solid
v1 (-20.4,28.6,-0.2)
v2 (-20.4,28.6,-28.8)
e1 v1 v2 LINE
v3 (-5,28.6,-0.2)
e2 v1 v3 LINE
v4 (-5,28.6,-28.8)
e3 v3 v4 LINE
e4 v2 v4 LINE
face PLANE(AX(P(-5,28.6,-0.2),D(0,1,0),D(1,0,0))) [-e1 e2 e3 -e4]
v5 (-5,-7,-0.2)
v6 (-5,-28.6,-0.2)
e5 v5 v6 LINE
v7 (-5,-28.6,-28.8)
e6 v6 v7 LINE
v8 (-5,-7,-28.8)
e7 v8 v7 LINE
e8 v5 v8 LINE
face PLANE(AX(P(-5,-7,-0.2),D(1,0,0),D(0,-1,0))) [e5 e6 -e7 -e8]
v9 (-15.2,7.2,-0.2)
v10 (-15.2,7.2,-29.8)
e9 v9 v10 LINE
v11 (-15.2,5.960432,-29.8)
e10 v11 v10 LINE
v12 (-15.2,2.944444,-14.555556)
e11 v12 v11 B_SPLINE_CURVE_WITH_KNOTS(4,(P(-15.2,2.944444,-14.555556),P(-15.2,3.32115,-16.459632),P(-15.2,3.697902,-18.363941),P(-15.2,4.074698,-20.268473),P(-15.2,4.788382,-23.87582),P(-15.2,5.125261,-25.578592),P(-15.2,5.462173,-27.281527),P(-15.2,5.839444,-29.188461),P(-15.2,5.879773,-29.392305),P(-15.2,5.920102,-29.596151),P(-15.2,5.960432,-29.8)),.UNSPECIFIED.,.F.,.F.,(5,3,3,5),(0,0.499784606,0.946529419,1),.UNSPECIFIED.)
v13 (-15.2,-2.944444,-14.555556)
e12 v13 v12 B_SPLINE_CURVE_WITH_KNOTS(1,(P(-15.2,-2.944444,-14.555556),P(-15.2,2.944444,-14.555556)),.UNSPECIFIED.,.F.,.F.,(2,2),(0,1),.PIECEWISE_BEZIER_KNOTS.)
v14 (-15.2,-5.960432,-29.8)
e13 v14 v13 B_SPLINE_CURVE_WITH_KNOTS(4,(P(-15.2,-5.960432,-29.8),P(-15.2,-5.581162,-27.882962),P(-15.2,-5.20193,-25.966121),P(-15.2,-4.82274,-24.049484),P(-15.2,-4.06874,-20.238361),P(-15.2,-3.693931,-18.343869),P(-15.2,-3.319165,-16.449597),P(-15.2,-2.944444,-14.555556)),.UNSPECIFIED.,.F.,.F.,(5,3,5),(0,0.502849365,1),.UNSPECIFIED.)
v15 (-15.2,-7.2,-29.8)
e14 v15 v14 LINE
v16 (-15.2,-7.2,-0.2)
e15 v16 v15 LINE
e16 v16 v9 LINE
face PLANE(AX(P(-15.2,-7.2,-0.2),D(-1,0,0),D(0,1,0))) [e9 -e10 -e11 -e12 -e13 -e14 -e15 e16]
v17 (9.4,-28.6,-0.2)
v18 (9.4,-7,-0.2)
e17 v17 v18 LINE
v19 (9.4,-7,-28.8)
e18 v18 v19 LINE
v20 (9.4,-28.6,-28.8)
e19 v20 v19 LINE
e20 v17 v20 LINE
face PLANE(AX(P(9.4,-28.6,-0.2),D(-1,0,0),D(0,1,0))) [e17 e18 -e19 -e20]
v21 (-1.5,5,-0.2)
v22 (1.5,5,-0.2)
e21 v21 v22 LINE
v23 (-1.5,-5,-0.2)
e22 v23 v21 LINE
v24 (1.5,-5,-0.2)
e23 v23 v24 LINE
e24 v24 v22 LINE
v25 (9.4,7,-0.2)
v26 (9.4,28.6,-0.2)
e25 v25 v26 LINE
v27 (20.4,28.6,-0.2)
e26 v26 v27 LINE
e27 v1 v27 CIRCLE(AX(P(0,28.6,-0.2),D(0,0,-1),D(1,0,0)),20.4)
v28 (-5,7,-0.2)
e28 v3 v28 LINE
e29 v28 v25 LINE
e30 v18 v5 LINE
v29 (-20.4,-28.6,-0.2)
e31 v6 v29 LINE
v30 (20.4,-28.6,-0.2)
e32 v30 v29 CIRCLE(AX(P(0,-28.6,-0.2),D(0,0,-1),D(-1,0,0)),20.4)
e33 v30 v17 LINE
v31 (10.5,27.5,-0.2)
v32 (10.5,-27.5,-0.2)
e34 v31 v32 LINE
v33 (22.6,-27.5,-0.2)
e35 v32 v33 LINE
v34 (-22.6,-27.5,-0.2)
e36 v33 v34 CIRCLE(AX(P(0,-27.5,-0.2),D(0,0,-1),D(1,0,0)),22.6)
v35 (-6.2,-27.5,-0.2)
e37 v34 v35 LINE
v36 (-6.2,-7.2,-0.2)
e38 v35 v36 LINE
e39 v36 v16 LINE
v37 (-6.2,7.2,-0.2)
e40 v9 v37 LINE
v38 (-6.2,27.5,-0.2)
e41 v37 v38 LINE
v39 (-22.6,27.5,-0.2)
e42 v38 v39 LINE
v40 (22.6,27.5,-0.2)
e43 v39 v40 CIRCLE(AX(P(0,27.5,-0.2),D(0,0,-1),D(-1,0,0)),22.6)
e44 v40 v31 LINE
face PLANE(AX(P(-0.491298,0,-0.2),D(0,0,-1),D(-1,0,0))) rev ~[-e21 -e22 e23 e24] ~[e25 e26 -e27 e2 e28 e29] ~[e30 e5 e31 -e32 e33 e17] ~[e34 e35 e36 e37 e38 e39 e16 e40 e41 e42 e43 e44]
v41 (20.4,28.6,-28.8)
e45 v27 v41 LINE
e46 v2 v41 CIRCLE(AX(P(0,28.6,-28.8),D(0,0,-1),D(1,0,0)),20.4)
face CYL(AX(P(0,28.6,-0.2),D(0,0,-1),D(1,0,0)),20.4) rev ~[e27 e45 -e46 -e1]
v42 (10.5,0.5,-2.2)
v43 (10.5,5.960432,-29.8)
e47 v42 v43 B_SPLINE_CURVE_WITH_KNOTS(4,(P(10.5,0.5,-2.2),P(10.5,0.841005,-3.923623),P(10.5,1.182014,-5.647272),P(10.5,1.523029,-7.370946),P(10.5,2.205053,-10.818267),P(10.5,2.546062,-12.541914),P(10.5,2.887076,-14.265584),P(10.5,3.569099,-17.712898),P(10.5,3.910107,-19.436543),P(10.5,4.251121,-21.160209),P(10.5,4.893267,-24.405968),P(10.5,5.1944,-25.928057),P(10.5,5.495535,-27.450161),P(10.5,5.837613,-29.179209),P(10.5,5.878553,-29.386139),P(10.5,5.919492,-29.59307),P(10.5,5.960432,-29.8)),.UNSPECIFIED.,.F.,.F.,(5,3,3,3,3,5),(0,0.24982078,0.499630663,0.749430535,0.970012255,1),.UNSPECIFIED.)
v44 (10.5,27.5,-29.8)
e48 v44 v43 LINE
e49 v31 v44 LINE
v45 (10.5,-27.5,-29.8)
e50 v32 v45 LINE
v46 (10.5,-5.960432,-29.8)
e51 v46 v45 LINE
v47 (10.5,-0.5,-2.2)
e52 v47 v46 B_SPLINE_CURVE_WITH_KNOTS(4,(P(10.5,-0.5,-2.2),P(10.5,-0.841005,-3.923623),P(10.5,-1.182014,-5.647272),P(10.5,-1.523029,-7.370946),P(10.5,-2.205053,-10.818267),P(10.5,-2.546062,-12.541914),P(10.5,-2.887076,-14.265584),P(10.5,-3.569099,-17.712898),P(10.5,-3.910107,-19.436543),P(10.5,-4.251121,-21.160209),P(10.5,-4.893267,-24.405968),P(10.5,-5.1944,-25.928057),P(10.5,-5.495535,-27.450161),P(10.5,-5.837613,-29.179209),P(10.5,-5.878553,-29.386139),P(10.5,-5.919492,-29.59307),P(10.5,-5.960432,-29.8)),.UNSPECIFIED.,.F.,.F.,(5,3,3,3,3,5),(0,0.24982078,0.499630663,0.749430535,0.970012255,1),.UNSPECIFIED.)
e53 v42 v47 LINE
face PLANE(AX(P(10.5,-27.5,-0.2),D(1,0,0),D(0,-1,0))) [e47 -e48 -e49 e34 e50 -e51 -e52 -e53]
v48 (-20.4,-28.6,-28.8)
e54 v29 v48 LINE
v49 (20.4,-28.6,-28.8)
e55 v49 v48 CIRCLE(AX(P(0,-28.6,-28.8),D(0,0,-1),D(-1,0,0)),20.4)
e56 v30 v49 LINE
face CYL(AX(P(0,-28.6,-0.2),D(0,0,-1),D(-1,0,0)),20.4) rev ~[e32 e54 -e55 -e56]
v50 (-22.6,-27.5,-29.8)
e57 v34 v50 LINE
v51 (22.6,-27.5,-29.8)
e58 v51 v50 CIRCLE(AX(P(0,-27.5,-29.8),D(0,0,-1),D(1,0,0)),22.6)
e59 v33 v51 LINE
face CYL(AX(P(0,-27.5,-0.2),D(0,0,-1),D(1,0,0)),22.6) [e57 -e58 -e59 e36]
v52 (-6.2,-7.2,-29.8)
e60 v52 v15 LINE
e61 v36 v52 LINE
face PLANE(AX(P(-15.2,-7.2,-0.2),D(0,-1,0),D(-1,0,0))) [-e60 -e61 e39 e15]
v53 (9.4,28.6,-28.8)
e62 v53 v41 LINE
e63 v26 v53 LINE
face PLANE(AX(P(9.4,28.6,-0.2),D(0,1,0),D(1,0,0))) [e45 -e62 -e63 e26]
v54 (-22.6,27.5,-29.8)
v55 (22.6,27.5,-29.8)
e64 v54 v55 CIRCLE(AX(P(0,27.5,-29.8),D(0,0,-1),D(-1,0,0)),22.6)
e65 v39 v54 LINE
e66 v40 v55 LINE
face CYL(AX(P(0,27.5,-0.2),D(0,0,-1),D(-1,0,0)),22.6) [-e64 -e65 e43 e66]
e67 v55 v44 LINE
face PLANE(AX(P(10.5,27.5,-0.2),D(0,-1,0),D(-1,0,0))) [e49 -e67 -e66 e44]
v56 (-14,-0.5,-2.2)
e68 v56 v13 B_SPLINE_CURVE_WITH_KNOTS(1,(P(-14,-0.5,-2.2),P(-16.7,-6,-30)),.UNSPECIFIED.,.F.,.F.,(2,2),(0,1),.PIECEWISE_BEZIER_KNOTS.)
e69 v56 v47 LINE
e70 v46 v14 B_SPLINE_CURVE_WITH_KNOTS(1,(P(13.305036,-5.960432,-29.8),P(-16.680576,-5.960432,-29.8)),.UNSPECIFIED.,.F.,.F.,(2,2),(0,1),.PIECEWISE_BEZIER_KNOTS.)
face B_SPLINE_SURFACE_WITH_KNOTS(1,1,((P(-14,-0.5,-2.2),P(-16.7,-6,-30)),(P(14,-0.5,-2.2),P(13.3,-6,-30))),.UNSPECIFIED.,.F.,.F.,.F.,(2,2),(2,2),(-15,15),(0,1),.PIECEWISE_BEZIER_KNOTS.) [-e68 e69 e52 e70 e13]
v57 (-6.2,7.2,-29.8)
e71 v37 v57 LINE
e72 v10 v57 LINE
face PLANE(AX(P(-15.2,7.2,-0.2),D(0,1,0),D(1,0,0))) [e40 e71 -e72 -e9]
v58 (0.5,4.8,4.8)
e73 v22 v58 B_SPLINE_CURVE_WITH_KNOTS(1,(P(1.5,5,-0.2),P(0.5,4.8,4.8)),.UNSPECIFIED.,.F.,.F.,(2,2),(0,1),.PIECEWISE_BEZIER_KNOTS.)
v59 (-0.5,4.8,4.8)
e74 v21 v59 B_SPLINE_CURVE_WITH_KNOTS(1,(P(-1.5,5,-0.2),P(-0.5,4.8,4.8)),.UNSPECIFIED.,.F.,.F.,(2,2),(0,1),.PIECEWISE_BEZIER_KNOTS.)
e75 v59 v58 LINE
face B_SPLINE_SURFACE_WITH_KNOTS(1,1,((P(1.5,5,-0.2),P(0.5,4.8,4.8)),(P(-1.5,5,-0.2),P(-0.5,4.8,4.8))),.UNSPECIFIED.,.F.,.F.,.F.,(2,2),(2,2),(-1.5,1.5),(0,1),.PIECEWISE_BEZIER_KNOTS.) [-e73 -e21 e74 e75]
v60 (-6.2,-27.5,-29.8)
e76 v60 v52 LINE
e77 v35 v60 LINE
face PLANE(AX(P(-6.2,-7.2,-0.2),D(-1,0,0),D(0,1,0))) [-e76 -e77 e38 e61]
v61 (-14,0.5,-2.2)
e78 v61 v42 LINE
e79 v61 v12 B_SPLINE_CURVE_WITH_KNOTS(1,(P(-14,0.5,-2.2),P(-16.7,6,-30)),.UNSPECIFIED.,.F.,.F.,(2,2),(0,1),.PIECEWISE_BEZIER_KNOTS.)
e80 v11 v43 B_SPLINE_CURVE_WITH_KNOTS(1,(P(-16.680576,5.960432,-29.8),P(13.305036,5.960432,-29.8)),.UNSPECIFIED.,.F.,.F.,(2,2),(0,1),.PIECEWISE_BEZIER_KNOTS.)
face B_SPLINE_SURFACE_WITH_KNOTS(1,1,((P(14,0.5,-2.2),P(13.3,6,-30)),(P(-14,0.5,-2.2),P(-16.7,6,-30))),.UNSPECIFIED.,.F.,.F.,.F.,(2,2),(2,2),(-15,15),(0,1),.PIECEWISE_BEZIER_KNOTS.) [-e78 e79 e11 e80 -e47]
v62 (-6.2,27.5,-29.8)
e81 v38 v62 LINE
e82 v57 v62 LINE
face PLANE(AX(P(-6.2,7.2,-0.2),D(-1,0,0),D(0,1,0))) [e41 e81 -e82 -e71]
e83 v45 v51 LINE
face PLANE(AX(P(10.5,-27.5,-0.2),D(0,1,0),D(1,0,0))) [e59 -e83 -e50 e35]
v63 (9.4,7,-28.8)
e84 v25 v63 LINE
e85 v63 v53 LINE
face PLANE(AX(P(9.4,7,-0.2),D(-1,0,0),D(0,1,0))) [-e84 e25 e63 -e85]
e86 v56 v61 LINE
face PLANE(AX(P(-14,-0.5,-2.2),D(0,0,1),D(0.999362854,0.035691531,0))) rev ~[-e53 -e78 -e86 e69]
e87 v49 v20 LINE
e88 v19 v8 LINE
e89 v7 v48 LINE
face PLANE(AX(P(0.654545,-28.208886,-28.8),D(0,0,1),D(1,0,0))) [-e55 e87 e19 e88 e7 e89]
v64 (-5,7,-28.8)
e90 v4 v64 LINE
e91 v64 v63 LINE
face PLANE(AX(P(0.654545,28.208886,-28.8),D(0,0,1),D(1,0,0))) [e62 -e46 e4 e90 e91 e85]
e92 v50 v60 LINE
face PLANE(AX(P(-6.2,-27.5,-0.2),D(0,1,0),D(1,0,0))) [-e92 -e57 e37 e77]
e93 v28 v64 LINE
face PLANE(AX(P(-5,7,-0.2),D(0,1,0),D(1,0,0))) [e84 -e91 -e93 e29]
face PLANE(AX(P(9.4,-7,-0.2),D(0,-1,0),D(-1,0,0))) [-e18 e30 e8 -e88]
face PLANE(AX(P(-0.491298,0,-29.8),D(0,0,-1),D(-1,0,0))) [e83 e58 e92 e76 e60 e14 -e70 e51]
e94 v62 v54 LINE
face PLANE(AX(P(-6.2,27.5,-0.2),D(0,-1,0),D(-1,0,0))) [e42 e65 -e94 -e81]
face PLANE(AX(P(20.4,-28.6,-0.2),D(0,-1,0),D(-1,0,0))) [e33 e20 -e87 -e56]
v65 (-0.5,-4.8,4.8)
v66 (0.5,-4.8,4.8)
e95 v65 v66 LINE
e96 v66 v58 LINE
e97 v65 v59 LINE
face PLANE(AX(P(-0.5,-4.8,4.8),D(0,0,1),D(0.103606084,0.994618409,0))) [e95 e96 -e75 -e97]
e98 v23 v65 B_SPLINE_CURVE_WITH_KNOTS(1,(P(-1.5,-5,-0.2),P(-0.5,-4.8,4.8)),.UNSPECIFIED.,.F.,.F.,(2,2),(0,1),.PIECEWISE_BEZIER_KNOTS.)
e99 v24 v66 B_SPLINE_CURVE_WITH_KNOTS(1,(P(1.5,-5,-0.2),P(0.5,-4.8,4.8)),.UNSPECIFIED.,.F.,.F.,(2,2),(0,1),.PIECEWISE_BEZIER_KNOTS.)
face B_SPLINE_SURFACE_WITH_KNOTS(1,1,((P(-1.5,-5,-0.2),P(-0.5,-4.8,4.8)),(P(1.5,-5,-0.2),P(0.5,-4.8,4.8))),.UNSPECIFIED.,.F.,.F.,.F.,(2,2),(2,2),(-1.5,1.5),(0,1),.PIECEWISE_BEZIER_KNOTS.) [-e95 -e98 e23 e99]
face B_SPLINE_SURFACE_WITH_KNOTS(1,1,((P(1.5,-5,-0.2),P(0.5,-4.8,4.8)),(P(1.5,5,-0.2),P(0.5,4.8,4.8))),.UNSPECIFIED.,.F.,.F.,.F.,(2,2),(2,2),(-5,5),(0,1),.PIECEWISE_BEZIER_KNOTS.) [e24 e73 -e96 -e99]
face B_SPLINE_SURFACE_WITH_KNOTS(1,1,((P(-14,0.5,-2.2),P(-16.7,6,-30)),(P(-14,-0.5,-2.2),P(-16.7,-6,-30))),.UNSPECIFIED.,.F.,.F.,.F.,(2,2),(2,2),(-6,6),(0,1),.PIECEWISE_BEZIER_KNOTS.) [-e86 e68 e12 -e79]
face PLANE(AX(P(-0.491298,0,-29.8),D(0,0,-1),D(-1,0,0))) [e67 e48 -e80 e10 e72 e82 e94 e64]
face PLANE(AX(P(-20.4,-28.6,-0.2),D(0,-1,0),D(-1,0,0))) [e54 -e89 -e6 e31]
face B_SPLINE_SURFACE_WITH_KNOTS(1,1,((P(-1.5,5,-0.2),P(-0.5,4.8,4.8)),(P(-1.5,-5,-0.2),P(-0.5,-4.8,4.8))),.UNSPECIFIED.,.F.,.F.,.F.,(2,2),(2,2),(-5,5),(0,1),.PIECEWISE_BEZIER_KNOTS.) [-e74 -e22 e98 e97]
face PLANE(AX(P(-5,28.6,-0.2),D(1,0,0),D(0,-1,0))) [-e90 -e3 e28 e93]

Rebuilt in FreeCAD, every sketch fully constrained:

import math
import FreeCAD as App
import Part
import Sketcher
from FreeCAD import Vector
Q = App.Units.Quantity


def add_polygon(sketch, points):
    """Adds a closed chain of lines whose ends are joined by coincident constraints."""
    first, n = sketch.GeometryCount, len(points)
    for a, b in zip(points, points[1:] + points[:1]):
        sketch.addGeometry(Part.LineSegment(App.Vector(*a, 0), App.Vector(*b, 0)), False)
    for i in range(n):
        sketch.addConstraint(Sketcher.Constraint("Coincident", first + i, 2, first + (i + 1) % n, 1))

doc = App.newDocument("Part")
body = doc.addObject("PartDesign::Body", "Body")

sketch1 = body.newObject("Sketcher::SketchObject", "Sketch")
sketch1.AttachmentSupport = (doc.getObject("XY_Plane"), [""])
sketch1.MapMode = "FlatFace"
sketch1.AttachmentOffset = App.Placement(Vector(0, 0, -0.2), App.Rotation())
add_polygon(sketch1, [(-1.5, 5), (-1.5, -5), (1.5, -5), (1.5, 5)])
sketch1.addConstraint([
    Sketcher.Constraint("Vertical", 0),
    Sketcher.Constraint("Horizontal", 1),
    Sketcher.Constraint("Vertical", 2),
    Sketcher.Constraint("Horizontal", 3),
    Sketcher.Constraint("Symmetric", 0, 2, 2, 2, -1, 1),
    Sketcher.Constraint("DistanceX", 1, 1, 1, 2, Q("3 mm")),
    Sketcher.Constraint("DistanceY", 0, 2, 0, 1, Q("10 mm")),
])

sketch2 = body.newObject("Sketcher::SketchObject", "Sketch001")
sketch2.AttachmentSupport = (doc.getObject("XY_Plane"), [""])
sketch2.MapMode = "FlatFace"
sketch2.AttachmentOffset = App.Placement(Vector(0, 0, 4.8), App.Rotation())
add_polygon(sketch2, [(-0.5, 4.8), (-0.5, -4.8), (0.5, -4.8), (0.5, 4.8)])
sketch2.addConstraint([
    Sketcher.Constraint("Vertical", 0),
    Sketcher.Constraint("Horizontal", 1),
    Sketcher.Constraint("Vertical", 2),
    Sketcher.Constraint("Horizontal", 3),
    Sketcher.Constraint("Symmetric", 0, 2, 2, 2, -1, 1),
    Sketcher.Constraint("DistanceX", 1, 1, 1, 2, Q("1 mm")),
    Sketcher.Constraint("DistanceY", 0, 2, 0, 1, Q("9.6 mm")),
])

additiveloft = body.newObject("PartDesign::AdditiveLoft", "AdditiveLoft")
additiveloft.Profile = sketch1
additiveloft.Sections = [sketch2]

sketch3 = body.newObject("Sketcher::SketchObject", "Sketch002")
sketch3.AttachmentSupport = (doc.getObject("XY_Plane"), [""])
sketch3.MapMode = "FlatFace"
sketch3.AttachmentOffset = App.Placement(Vector(0, 0, -0.2), App.Rotation())
sketch3.addGeometry([
    Part.LineSegment(Vector(10, 28, 0), Vector(10, -28, 0)),
    Part.LineSegment(Vector(10, -28, 0), Vector(23, -28, 0)),
    Part.ArcOfCircle(Part.Circle(Vector(0, -28, 0), Vector(0, 0, 1), 23), math.radians(180), math.radians(360)),
    Part.LineSegment(Vector(-23, -28, 0), Vector(-6, -28, 0)),
    Part.LineSegment(Vector(-6, -28, 0), Vector(-6, -7, 0)),
    Part.LineSegment(Vector(-6, -7, 0), Vector(-15, -7, 0)),
    Part.LineSegment(Vector(-15, -7, 0), Vector(-15, 7, 0)),
    Part.LineSegment(Vector(-15, 7, 0), Vector(-6, 7, 0)),
    Part.LineSegment(Vector(-6, 7, 0), Vector(-6, 28, 0)),
    Part.LineSegment(Vector(-6, 28, 0), Vector(-23, 28, 0)),
    Part.ArcOfCircle(Part.Circle(Vector(0, 28, 0), Vector(0, 0, 1), 23), math.radians(0), math.radians(180)),
    Part.LineSegment(Vector(23, 28, 0), Vector(10, 28, 0)),
], False)
sketch3.addConstraint([
    Sketcher.Constraint("Coincident", 0, 2, 1, 1),
    Sketcher.Constraint("Coincident", 1, 2, 2, 2),
    Sketcher.Constraint("Coincident", 2, 1, 3, 1),
    Sketcher.Constraint("Coincident", 3, 2, 4, 1),
    Sketcher.Constraint("Coincident", 4, 2, 5, 1),
    Sketcher.Constraint("Coincident", 5, 2, 6, 1),
    Sketcher.Constraint("Coincident", 6, 2, 7, 1),
    Sketcher.Constraint("Coincident", 7, 2, 8, 1),
    Sketcher.Constraint("Coincident", 8, 2, 9, 1),
    Sketcher.Constraint("Coincident", 9, 2, 10, 2),
    Sketcher.Constraint("Coincident", 10, 1, 11, 1),
    Sketcher.Constraint("Coincident", 11, 2, 0, 1),
    Sketcher.Constraint("Vertical", 0),
    Sketcher.Constraint("Horizontal", 1),
    Sketcher.Constraint("Horizontal", 3),
    Sketcher.Constraint("Vertical", 4),
    Sketcher.Constraint("Horizontal", 5),
    Sketcher.Constraint("Vertical", 6),
    Sketcher.Constraint("Horizontal", 7),
    Sketcher.Constraint("Vertical", 8),
    Sketcher.Constraint("Horizontal", 9),
    Sketcher.Constraint("Horizontal", 11),
    Sketcher.Constraint("Equal", 2, 10),
    Sketcher.Constraint("Symmetric", 2, 3, 10, 3, -1, 1),
    Sketcher.Constraint("Symmetric", 1, 2, 2, 1, -2),
    Sketcher.Constraint("Symmetric", 4, 2, 7, 2, -1),
    Sketcher.Constraint("Horizontal", 2, 3, 0, 2),
    Sketcher.Constraint("Horizontal", 10, 3, 8, 2),
    Sketcher.Constraint("Horizontal", 9, 2, 10, 1),
    Sketcher.Constraint("Radius", 2, Q("22.6 mm")),
    Sketcher.Constraint("DistanceX", 5, 2, 5, 1, Q("9 mm")),
    Sketcher.Constraint("DistanceY", 0, 2, 0, 1, Q("55 mm")),
    Sketcher.Constraint("DistanceX", 1, 1, 1, 2, Q("12.1 mm")),
    Sketcher.Constraint("DistanceX", 3, 1, 3, 2, Q("16.4 mm")),
    Sketcher.Constraint("DistanceY", 4, 1, 4, 2, Q("20.3 mm")),
])

sketch4 = body.newObject("Sketcher::SketchObject", "Sketch003")
sketch4.AttachmentSupport = (doc.getObject("XZ_Plane"), [""])
sketch4.MapMode = "FlatFace"
sketch4.addGeometry(Part.LineSegment(Vector(0, 0, 0), Vector(0, -30, 0)), False)
sketch4.addConstraint([
    Sketcher.Constraint("Vertical", 0),
    Sketcher.Constraint("PointOnObject", 0, 1, -2),
    Sketcher.Constraint("DistanceY", 0, 2, 0, 1, Q("29.6 mm")),
    Sketcher.Constraint("DistanceY", 0, 1, -1, 1, Q("0.2 mm")),
])
doc.recompute()

additivepipe = body.newObject("PartDesign::AdditivePipe", "AdditivePipe")
additivepipe.Profile = sketch3
additivepipe.Spine = (sketch4, ["Edge1"])

sketch5 = body.newObject("Sketcher::SketchObject", "Sketch004")
sketch5.AttachmentSupport = (doc.getObject("XY_Plane"), [""])
sketch5.MapMode = "FlatFace"
sketch5.AttachmentOffset = App.Placement(Vector(0, 0, -2.2), App.Rotation())
add_polygon(sketch5, [(-14, 0.5), (-14, -0.5), (14, -0.5), (14, 0.5)])
sketch5.addConstraint([
    Sketcher.Constraint("Vertical", 0),
    Sketcher.Constraint("Horizontal", 1),
    Sketcher.Constraint("Vertical", 2),
    Sketcher.Constraint("Horizontal", 3),
    Sketcher.Constraint("Symmetric", 0, 2, 2, 2, -1, 1),
    Sketcher.Constraint("DistanceX", 1, 1, 1, 2, Q("28 mm")),
    Sketcher.Constraint("DistanceY", 0, 2, 0, 1, Q("1 mm")),
])

sketch6 = body.newObject("Sketcher::SketchObject", "Sketch005")
sketch6.AttachmentSupport = (doc.getObject("XY_Plane"), [""])
sketch6.MapMode = "FlatFace"
sketch6.AttachmentOffset = App.Placement(Vector(0, 0, -30), App.Rotation())
add_polygon(sketch6, [(-17, 6), (-17, -6), (13, -6), (13, 6)])
sketch6.addConstraint([
    Sketcher.Constraint("Vertical", 0),
    Sketcher.Constraint("Horizontal", 1),
    Sketcher.Constraint("Vertical", 2),
    Sketcher.Constraint("Horizontal", 3),
    Sketcher.Constraint("DistanceX", 1, 1, 1, 2, Q("30 mm")),
    Sketcher.Constraint("DistanceY", 0, 2, 0, 1, Q("12 mm")),
    Sketcher.Constraint("DistanceY", 0, 2, -1, 1, Q("6 mm")),
    Sketcher.Constraint("DistanceX", 0, 2, -1, 1, Q("16.7 mm")),
])

subtractiveloft = body.newObject("PartDesign::SubtractiveLoft", "SubtractiveLoft")
subtractiveloft.Profile = sketch5
subtractiveloft.Sections = [sketch6]

sketch7 = body.newObject("Sketcher::SketchObject", "Sketch006")
sketch7.AttachmentSupport = (doc.getObject("XY_Plane"), [""])
sketch7.MapMode = "FlatFace"
sketch7.AttachmentOffset = App.Placement(Vector(0, 0, -0.2), App.Rotation())
sketch7.addGeometry([
    Part.LineSegment(Vector(-5, -7, 0), Vector(-5, -29, 0)),
    Part.LineSegment(Vector(-5, -29, 0), Vector(-20, -29, 0)),
    Part.ArcOfCircle(Part.Circle(Vector(0, -29, 0), Vector(0, 0, 1), 20), math.radians(180), math.radians(360)),
    Part.LineSegment(Vector(20, -29, 0), Vector(9, -29, 0)),
    Part.LineSegment(Vector(9, -29, 0), Vector(9, -7, 0)),
    Part.LineSegment(Vector(9, -7, 0), Vector(-5, -7, 0)),
], False)
sketch7.addConstraint([
    Sketcher.Constraint("Coincident", 0, 2, 1, 1),
    Sketcher.Constraint("Coincident", 1, 2, 2, 1),
    Sketcher.Constraint("Coincident", 2, 2, 3, 1),
    Sketcher.Constraint("Coincident", 3, 2, 4, 1),
    Sketcher.Constraint("Coincident", 4, 2, 5, 1),
    Sketcher.Constraint("Coincident", 5, 2, 0, 1),
    Sketcher.Constraint("Vertical", 0),
    Sketcher.Constraint("Horizontal", 1),
    Sketcher.Constraint("Horizontal", 3),
    Sketcher.Constraint("Vertical", 4),
    Sketcher.Constraint("Horizontal", 5),
    Sketcher.Constraint("Symmetric", 1, 2, 2, 2, -2),
    Sketcher.Constraint("Horizontal", 2, 3, 0, 2),
    Sketcher.Constraint("Radius", 2, Q("20.4 mm")),
    Sketcher.Constraint("DistanceX", 3, 2, 3, 1, Q("11 mm")),
    Sketcher.Constraint("DistanceX", 1, 2, 1, 1, Q("15.4 mm")),
    Sketcher.Constraint("DistanceY", 0, 2, 0, 1, Q("21.6 mm")),
    Sketcher.Constraint("DistanceY", 4, 2, -1, 1, Q("7 mm")),
])

sketch8 = body.newObject("Sketcher::SketchObject", "Sketch007")
sketch8.AttachmentSupport = (doc.getObject("XZ_Plane"), [""])
sketch8.MapMode = "FlatFace"
sketch8.AttachmentOffset = App.Placement(Vector(0, 0, -15), App.Rotation())
sketch8.addGeometry(Part.LineSegment(Vector(0, 0, 0), Vector(0, -29, 0)), False)
sketch8.addConstraint([
    Sketcher.Constraint("Vertical", 0),
    Sketcher.Constraint("PointOnObject", 0, 1, -2),
    Sketcher.Constraint("DistanceY", 0, 2, 0, 1, Q("28.6 mm")),
    Sketcher.Constraint("DistanceY", 0, 1, -1, 1, Q("0.2 mm")),
])
doc.recompute()

subtractivepipe = body.newObject("PartDesign::SubtractivePipe", "SubtractivePipe")
subtractivepipe.Profile = sketch7
subtractivepipe.Spine = (sketch8, ["Edge1"])

sketch9 = body.newObject("Sketcher::SketchObject", "Sketch008")
sketch9.AttachmentSupport = (doc.getObject("XY_Plane"), [""])
sketch9.MapMode = "FlatFace"
sketch9.AttachmentOffset = App.Placement(Vector(0, 0, -0.2), App.Rotation())
sketch9.addGeometry([
    Part.LineSegment(Vector(-5, 29, 0), Vector(-5, 7, 0)),
    Part.LineSegment(Vector(-5, 7, 0), Vector(9, 7, 0)),
    Part.LineSegment(Vector(9, 7, 0), Vector(9, 29, 0)),
    Part.LineSegment(Vector(9, 29, 0), Vector(20, 29, 0)),
    Part.ArcOfCircle(Part.Circle(Vector(0, 29, 0), Vector(0, 0, 1), 20), math.radians(0), math.radians(180)),
    Part.LineSegment(Vector(-20, 29, 0), Vector(-5, 29, 0)),
], False)
sketch9.addConstraint([
    Sketcher.Constraint("Coincident", 0, 2, 1, 1),
    Sketcher.Constraint("Coincident", 1, 2, 2, 1),
    Sketcher.Constraint("Coincident", 2, 2, 3, 1),
    Sketcher.Constraint("Coincident", 3, 2, 4, 1),
    Sketcher.Constraint("Coincident", 4, 2, 5, 1),
    Sketcher.Constraint("Coincident", 5, 2, 0, 1),
    Sketcher.Constraint("Vertical", 0),
    Sketcher.Constraint("Horizontal", 1),
    Sketcher.Constraint("Vertical", 2),
    Sketcher.Constraint("Horizontal", 3),
    Sketcher.Constraint("Horizontal", 5),
    Sketcher.Constraint("Symmetric", 3, 2, 4, 2, -2),
    Sketcher.Constraint("Horizontal", 4, 3, 2, 2),
    Sketcher.Constraint("Radius", 4, Q("20.4 mm")),
    Sketcher.Constraint("DistanceX", 3, 1, 3, 2, Q("11 mm")),
    Sketcher.Constraint("DistanceX", 1, 1, 1, 2, Q("14.4 mm")),
    Sketcher.Constraint("DistanceY", 0, 2, 0, 1, Q("21.6 mm")),
    Sketcher.Constraint("DistanceY", -1, 1, 0, 2, Q("7 mm")),
])

sketch10 = body.newObject("Sketcher::SketchObject", "Sketch009")
sketch10.AttachmentSupport = (doc.getObject("XZ_Plane"), [""])
sketch10.MapMode = "FlatFace"
sketch10.AttachmentOffset = App.Placement(Vector(0, 0, -15), App.Rotation())
sketch10.addGeometry(Part.LineSegment(Vector(0, 0, 0), Vector(0, -29, 0)), False)
sketch10.addConstraint([
    Sketcher.Constraint("Vertical", 0),
    Sketcher.Constraint("PointOnObject", 0, 1, -2),
    Sketcher.Constraint("DistanceY", 0, 2, 0, 1, Q("28.6 mm")),
    Sketcher.Constraint("DistanceY", 0, 1, -1, 1, Q("0.2 mm")),
])
doc.recompute()

subtractivepipe2 = body.newObject("PartDesign::SubtractivePipe", "SubtractivePipe001")
subtractivepipe2.Profile = sketch9
subtractivepipe2.Spine = (sketch10, ["Edge1"])

doc.recompute()
